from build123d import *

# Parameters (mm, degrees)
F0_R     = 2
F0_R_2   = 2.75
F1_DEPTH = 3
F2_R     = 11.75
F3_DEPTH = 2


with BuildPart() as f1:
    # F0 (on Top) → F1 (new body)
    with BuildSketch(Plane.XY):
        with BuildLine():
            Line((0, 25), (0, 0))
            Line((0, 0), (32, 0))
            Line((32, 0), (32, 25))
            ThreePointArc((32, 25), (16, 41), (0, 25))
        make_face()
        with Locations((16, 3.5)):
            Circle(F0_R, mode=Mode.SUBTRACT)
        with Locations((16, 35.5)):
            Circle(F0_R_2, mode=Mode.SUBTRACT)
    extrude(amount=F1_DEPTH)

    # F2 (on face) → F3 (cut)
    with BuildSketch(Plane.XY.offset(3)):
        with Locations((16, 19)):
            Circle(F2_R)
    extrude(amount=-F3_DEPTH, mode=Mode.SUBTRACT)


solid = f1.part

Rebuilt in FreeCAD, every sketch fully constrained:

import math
import FreeCAD as App
import Part
import Sketcher

V = App.Vector

doc = App.newDocument("Part")
body = doc.addObject("PartDesign::Body", "Body")

# Sketch on XY plane
sketch1 = doc.addObject("Sketcher::SketchObject", "Sketch")
body.addObject(sketch1)
sketch1.AttachmentSupport = (doc.XY_Plane, [""])
sketch1.MapMode = "FlatFace"
sketch1.addGeometry(Part.LineSegment(V(0, 25, 0), V(0, 0, 0)), False)
sketch1.addGeometry(Part.LineSegment(V(0, 0, 0), V(32, 0, 0)), False)
sketch1.addGeometry(Part.LineSegment(V(32, 0, 0), V(32, 25, 0)), False)
sketch1.addGeometry(Part.ArcOfCircle(Part.Circle(V(16, 25, 0), V(0, 0, 1), 16), math.radians(0), math.radians(180)), False)
sketch1.addGeometry(Part.Circle(V(16, 3.5, 0), V(0, 0, 1), 2), False)
sketch1.addGeometry(Part.Circle(V(16, 35.5, 0), V(0, 0, 1), 2.75), False)
sketch1.addConstraint(Sketcher.Constraint("Coincident", 0, 2, 1, 1))
sketch1.addConstraint(Sketcher.Constraint("Coincident", 1, 2, 2, 1))
sketch1.addConstraint(Sketcher.Constraint("Tangent", 2, 2, 3, 1))
sketch1.addConstraint(Sketcher.Constraint("Tangent", 3, 2, 0, 1))
sketch1.addConstraint(Sketcher.Constraint("Vertical", 0))
sketch1.addConstraint(Sketcher.Constraint("Horizontal", 1))
sketch1.addConstraint(Sketcher.Constraint("Vertical", 2))
sketch1.addConstraint(Sketcher.Constraint("Coincident", 0, 2, -1, 1))
sketch1.addConstraint(Sketcher.Constraint("Vertical", 3, 3, 4, 3))
sketch1.addConstraint(Sketcher.Constraint("Vertical", 4, 3, 5, 3))
sketch1.addConstraint(Sketcher.Constraint("Diameter", 4, 4.0))
sketch1.addConstraint(Sketcher.Constraint("Radius", 3, 16.0))
sketch1.addConstraint(Sketcher.Constraint("Diameter", 5, 5.5))
sketch1.addConstraint(Sketcher.Constraint("DistanceY", 0, 2, 0, 1, 25.0))
sketch1.addConstraint(Sketcher.Constraint("DistanceY", 4, 3, 5, 3, 32.0))
sketch1.addConstraint(Sketcher.Constraint("DistanceY", -1, 1, 4, 3, 3.5))
pad1 = doc.addObject("PartDesign::Pad", "Pad")
body.addObject(pad1)
pad1.Profile = sketch1
pad1.Length = 3

# Sketch on XY plane
sketch2 = doc.addObject("Sketcher::SketchObject", "Sketch001")
body.addObject(sketch2)
sketch2.AttachmentSupport = (doc.XY_Plane, [""])
sketch2.MapMode = "FlatFace"
sketch2.AttachmentOffset = App.Placement(V(0, 0, 3), App.Rotation())
sketch2.addGeometry(Part.Circle(V(16, 19, 0), V(0, 0, 1), 11.75), False)
sketch2.addConstraint(Sketcher.Constraint("Diameter", 0, 23.5))
sketch2.addConstraint(Sketcher.Constraint("DistanceX", -1, 1, 0, 3, 16.0))
sketch2.addConstraint(Sketcher.Constraint("DistanceY", -1, 1, 0, 3, 19.0))
pocket1 = doc.addObject("PartDesign::Pocket", "Pocket")
body.addObject(pocket1)
pocket1.Profile = sketch2
pocket1.Length = 2

doc.recompute()
